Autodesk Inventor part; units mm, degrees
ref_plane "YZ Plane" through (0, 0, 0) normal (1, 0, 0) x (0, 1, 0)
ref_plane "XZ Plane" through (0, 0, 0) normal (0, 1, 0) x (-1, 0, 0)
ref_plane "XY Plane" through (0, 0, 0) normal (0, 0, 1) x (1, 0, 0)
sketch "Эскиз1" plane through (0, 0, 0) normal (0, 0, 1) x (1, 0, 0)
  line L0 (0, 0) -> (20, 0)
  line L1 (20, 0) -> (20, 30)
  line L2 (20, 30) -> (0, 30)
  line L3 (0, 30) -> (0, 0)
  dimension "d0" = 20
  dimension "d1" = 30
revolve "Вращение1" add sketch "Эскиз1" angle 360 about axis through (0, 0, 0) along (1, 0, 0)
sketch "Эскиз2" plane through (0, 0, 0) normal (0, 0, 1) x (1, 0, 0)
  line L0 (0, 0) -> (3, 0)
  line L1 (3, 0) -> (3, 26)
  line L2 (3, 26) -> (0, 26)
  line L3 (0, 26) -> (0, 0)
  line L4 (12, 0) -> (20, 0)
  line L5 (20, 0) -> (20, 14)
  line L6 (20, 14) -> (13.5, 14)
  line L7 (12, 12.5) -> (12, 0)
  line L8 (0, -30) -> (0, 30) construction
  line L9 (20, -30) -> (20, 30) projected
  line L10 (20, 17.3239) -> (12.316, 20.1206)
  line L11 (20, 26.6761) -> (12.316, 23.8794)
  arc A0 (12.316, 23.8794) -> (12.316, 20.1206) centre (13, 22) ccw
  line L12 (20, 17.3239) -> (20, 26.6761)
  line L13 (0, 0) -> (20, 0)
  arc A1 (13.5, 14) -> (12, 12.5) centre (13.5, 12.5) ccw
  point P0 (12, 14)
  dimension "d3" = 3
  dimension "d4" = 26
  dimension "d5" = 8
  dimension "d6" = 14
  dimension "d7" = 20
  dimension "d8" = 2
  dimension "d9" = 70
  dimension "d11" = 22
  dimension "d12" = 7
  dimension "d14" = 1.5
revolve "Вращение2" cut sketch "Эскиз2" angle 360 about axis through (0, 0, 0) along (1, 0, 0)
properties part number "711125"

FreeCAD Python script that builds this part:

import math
import FreeCAD as App
import Part
import Sketcher
from FreeCAD import Vector
Q = App.Units.Quantity


def add_polygon(sketch, points):
    """Adds a closed chain of lines whose ends are joined by coincident constraints."""
    first, n = sketch.GeometryCount, len(points)
    for a, b in zip(points, points[1:] + points[:1]):
        sketch.addGeometry(Part.LineSegment(App.Vector(*a, 0), App.Vector(*b, 0)), False)
    for i in range(n):
        sketch.addConstraint(Sketcher.Constraint("Coincident", first + i, 2, first + (i + 1) % n, 1))

doc = App.newDocument("Part")
body = doc.addObject("PartDesign::Body", "Body")

sketch1 = body.newObject("Sketcher::SketchObject", "Sketch")
sketch1.AttachmentSupport = (doc.getObject("XY_Plane"), [""])
sketch1.MapMode = "FlatFace"
add_polygon(sketch1, [(0, 30), (0, 0), (20, 0), (20, 30)])
sketch1.addConstraint([
    Sketcher.Constraint("Vertical", 0),
    Sketcher.Constraint("Horizontal", 1),
    Sketcher.Constraint("Vertical", 2),
    Sketcher.Constraint("Horizontal", 3),
    Sketcher.Constraint("Coincident", 0, 2, -1, 1),
    Sketcher.Constraint("DistanceX", 1, 1, 1, 2, 20.0),
    Sketcher.Constraint("DistanceY", 0, 2, 0, 1, 30.0),
])
revolution = body.newObject("PartDesign::Revolution", "Revolution")
revolution.Profile = sketch1
revolution.ReferenceAxis = (sketch1, ["H_Axis"])
revolution.Angle = 360

sketch2 = body.newObject("Sketcher::SketchObject", "Sketch001")
sketch2.AttachmentSupport = (doc.getObject("XY_Plane"), [""])
sketch2.MapMode = "FlatFace"
add_polygon(sketch2, [(0, 26), (0, 0), (3, 0), (3, 26)])
sketch2.addGeometry(Part.LineSegment(Vector(12.3, 20.1, 0), Vector(20, 17.3, 0)), False)
sketch2.addGeometry(Part.LineSegment(Vector(20, 17.3, 0), Vector(20, 26.7, 0)), False)
sketch2.addGeometry(Part.LineSegment(Vector(20, 26.7, 0), Vector(12.3, 23.9, 0)), False)
sketch2.addGeometry(Part.ArcOfCircle(Part.Circle(Vector(13, 22, 0), Vector(0, 0, 1), 2), math.radians(110), math.radians(250)), False)
sketch2.addGeometry(Part.LineSegment(Vector(12, 12.5, 0), Vector(12, 0, 0)), False)
sketch2.addGeometry(Part.LineSegment(Vector(12, 0, 0), Vector(20, 0, 0)), False)
sketch2.addGeometry(Part.LineSegment(Vector(20, 0, 0), Vector(20, 14, 0)), False)
sketch2.addGeometry(Part.LineSegment(Vector(20, 14, 0), Vector(13.5, 14, 0)), False)
sketch2.addGeometry(Part.ArcOfCircle(Part.Circle(Vector(13.5, 12.5, 0), Vector(0, 0, 1), 1.5), math.radians(90), math.radians(180)), False)
sketch2.addConstraint([
    Sketcher.Constraint("Coincident", 4, 2, 5, 1),
    Sketcher.Constraint("Coincident", 5, 2, 6, 1),
    Sketcher.Constraint("Tangent", 6, 2, 7, 1),
    Sketcher.Constraint("Tangent", 7, 2, 4, 1),
    Sketcher.Constraint("Coincident", 8, 2, 9, 1),
    Sketcher.Constraint("Coincident", 9, 2, 10, 1),
    Sketcher.Constraint("Coincident", 10, 2, 11, 1),
    Sketcher.Constraint("Tangent", 11, 2, 12, 1),
    Sketcher.Constraint("Tangent", 12, 2, 8, 1),
    Sketcher.Constraint("Vertical", 0),
    Sketcher.Constraint("Horizontal", 1),
    Sketcher.Constraint("Vertical", 2),
    Sketcher.Constraint("Horizontal", 3),
    Sketcher.Constraint("Vertical", 5),
    Sketcher.Constraint("Vertical", 8),
    Sketcher.Constraint("Horizontal", 9),
    Sketcher.Constraint("Vertical", 10),
    Sketcher.Constraint("Horizontal", 11),
    Sketcher.Constraint("Coincident", 0, 2, -1, 1),
    Sketcher.Constraint("PointOnObject", 8, 2, -1),
    Sketcher.Constraint("Vertical", 6, 2, 7, 2),
    Sketcher.Constraint("Vertical", 5, 2, 9, 2),
    Sketcher.Constraint("Radius", 7, 2.0),
    Sketcher.Constraint("Radius", 12, 1.5),
    Sketcher.Constraint("DistanceX", 1, 1, 1, 2, 3.0),
    Sketcher.Constraint("DistanceX", 9, 1, 9, 2, 8.0),
    Sketcher.Constraint("DistanceY", 0, 2, 0, 1, 26.0),
    Sketcher.Constraint("DistanceY", 10, 1, 10, 2, 14.0),
    Sketcher.Constraint("Angle", 4, Q("-19.9997 deg")),
    Sketcher.Constraint("DistanceY", -1, 1, 7, 3, 22.0),
    Sketcher.Constraint("DistanceX", -1, 1, 4, 2, 20.0),
    Sketcher.Constraint("DistanceX", 7, 3, 4, 2, 7.0),
])
groove = body.newObject("PartDesign::Groove", "Groove")
groove.Profile = sketch2
groove.ReferenceAxis = (sketch2, ["H_Axis"])
groove.Angle = 360

doc.recompute()
